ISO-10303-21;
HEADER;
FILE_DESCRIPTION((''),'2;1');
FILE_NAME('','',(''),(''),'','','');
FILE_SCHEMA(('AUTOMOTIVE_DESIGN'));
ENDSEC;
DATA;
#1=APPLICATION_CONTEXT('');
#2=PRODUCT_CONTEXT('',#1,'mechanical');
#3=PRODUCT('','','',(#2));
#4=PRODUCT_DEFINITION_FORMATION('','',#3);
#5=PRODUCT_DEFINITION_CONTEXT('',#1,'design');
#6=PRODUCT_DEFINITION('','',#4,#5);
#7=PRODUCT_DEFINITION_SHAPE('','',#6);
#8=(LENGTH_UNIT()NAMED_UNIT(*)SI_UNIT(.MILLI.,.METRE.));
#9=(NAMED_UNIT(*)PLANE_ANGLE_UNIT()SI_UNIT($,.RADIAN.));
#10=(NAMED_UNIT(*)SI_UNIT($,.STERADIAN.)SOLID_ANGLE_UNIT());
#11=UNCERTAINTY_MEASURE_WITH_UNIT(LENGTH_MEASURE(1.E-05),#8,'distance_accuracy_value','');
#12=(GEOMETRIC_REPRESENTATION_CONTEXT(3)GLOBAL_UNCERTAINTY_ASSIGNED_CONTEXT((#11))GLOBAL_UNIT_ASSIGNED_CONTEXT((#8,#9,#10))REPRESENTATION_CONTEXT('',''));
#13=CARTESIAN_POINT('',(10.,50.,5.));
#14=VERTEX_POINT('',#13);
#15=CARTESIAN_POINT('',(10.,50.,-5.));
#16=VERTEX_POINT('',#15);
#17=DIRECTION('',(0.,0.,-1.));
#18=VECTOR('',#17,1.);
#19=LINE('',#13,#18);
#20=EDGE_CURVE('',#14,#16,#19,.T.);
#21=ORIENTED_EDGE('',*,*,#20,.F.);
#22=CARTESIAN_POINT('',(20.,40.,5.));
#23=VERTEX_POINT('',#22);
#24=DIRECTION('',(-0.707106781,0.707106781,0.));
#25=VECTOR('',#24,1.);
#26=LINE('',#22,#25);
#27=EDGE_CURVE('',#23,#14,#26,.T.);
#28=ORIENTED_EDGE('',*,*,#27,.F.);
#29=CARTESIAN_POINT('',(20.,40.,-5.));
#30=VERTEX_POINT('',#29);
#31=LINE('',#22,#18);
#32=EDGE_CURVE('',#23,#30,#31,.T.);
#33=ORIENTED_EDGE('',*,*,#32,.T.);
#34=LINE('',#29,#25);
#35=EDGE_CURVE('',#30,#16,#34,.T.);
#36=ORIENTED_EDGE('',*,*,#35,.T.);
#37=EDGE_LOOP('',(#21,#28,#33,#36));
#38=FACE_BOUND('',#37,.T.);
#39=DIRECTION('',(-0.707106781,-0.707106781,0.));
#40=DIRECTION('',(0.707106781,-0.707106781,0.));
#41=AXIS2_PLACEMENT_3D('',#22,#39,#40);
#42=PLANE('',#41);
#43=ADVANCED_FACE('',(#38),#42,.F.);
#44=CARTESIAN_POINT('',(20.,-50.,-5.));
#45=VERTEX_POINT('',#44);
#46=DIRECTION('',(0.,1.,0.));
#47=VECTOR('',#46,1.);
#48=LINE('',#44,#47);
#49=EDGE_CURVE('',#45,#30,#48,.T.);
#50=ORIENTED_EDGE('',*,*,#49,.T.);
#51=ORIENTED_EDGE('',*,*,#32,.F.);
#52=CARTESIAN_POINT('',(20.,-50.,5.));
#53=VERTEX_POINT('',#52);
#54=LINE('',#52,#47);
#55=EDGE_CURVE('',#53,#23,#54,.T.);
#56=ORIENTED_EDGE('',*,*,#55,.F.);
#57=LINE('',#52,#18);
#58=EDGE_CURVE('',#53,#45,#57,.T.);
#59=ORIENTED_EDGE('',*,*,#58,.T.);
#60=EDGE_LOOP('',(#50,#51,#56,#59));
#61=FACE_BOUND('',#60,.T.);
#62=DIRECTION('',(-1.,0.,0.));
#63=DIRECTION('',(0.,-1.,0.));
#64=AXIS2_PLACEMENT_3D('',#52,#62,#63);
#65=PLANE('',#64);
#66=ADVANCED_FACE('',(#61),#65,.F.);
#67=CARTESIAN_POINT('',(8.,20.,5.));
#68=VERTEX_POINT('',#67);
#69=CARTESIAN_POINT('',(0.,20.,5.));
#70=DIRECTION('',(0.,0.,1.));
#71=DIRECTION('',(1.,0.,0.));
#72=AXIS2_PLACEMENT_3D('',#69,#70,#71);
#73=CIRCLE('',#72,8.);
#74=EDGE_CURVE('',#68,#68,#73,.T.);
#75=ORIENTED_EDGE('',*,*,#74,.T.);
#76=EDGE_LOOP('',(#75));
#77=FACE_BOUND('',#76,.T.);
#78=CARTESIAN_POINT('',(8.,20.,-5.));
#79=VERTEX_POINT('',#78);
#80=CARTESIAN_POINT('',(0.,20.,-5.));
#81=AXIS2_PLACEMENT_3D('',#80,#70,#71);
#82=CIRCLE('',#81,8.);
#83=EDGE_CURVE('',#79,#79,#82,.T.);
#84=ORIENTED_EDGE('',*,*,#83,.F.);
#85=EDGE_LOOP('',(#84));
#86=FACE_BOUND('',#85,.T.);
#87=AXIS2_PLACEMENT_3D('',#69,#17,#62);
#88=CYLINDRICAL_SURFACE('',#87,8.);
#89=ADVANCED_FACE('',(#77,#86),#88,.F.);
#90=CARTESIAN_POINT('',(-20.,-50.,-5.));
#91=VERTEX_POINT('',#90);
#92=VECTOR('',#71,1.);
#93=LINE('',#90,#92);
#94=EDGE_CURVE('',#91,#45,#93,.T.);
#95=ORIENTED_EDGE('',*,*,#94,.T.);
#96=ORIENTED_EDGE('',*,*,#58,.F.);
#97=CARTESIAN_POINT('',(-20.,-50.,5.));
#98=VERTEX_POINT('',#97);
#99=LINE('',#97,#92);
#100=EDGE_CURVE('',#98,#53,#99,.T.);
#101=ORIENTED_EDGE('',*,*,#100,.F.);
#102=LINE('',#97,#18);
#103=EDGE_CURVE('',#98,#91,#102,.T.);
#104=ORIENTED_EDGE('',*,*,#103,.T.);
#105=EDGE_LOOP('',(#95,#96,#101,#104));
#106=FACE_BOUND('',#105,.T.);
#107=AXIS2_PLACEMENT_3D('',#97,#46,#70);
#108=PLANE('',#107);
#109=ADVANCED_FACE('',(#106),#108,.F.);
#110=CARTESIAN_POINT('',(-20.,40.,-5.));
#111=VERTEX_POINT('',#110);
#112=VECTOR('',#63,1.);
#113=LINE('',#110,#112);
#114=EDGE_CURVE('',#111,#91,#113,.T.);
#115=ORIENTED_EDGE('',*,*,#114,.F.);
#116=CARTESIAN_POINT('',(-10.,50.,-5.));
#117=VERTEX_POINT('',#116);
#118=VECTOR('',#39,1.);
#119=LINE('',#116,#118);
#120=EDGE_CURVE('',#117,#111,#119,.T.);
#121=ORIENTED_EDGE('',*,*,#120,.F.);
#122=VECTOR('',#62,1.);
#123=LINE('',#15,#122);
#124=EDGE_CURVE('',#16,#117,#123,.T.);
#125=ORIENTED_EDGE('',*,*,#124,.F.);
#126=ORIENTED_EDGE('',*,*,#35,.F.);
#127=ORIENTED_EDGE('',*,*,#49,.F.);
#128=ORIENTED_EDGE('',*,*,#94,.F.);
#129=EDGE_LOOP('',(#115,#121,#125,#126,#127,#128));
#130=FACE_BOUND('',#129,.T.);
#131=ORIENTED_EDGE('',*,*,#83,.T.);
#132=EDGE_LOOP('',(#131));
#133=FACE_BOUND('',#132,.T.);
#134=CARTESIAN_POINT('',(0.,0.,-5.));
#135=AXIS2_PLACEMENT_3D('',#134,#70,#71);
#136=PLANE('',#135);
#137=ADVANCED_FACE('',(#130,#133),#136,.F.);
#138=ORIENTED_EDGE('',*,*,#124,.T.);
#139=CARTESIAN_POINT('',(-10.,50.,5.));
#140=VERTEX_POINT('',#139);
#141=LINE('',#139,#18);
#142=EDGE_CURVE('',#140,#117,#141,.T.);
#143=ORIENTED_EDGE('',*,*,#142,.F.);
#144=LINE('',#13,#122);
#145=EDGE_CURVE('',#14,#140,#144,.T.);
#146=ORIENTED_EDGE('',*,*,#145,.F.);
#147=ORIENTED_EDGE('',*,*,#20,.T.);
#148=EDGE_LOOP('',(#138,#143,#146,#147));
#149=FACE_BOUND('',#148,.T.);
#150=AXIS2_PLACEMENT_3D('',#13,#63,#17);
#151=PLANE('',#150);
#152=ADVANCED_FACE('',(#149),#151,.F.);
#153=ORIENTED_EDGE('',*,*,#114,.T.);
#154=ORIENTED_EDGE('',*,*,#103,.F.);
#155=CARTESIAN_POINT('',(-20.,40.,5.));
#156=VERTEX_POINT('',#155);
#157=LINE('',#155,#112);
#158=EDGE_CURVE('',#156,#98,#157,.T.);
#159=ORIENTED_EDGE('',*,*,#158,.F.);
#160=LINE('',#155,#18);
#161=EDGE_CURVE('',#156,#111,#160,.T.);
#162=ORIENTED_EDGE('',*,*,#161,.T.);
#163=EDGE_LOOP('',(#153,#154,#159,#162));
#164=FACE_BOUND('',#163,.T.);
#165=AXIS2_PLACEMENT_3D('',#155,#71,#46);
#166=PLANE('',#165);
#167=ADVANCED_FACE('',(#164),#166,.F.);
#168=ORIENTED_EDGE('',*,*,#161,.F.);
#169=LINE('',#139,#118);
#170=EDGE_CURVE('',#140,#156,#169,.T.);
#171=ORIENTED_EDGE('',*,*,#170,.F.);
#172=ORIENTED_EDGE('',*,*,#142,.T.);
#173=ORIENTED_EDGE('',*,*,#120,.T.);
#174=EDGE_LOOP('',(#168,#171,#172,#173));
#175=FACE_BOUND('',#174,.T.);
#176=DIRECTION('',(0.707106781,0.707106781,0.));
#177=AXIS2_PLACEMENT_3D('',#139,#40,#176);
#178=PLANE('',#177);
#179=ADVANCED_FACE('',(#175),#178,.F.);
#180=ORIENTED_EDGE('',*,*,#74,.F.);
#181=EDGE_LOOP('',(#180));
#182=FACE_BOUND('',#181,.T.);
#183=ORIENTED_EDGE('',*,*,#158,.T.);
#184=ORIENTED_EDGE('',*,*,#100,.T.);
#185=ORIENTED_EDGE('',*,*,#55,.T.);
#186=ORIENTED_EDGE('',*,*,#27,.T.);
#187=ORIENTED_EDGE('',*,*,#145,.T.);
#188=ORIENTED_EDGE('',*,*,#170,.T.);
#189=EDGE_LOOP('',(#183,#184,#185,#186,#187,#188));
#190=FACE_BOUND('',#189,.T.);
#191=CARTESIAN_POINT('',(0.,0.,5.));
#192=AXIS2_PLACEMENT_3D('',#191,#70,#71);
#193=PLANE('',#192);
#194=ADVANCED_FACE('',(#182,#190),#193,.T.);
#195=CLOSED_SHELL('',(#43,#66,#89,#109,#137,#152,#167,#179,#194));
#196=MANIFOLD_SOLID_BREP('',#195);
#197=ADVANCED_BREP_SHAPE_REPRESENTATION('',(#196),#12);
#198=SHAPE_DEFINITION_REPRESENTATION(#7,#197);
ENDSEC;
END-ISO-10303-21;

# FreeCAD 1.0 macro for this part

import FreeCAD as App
import Part
import Sketcher
from FreeCAD import Vector
Q = App.Units.Quantity


def add_polygon(sketch, points):
    """Adds a closed chain of lines whose ends are joined by coincident constraints."""
    first, n = sketch.GeometryCount, len(points)
    for a, b in zip(points, points[1:] + points[:1]):
        sketch.addGeometry(Part.LineSegment(App.Vector(*a, 0), App.Vector(*b, 0)), False)
    for i in range(n):
        sketch.addConstraint(Sketcher.Constraint("Coincident", first + i, 2, first + (i + 1) % n, 1))

doc = App.newDocument("Part")
body = doc.addObject("PartDesign::Body", "Body")

# Sketch on XY plane
sketch1 = body.newObject("Sketcher::SketchObject", "Sketch")
sketch1.AttachmentSupport = (doc.getObject("XY_Plane"), [""])
sketch1.MapMode = "FlatFace"
add_polygon(sketch1, [(-20, -50), (20, -50), (20, 40), (10, 50), (-10, 50), (-20, 40)])  # lines 0-5
sketch1.addGeometry(Part.Circle(Vector(0, 20, 0), Vector(0, 0, 1), 8), False)  # 6
sketch1.addConstraint([
    Sketcher.Constraint("Horizontal", 0),
    Sketcher.Constraint("Vertical", 1),
    Sketcher.Constraint("Horizontal", 3),
    Sketcher.Constraint("Vertical", 5),
    Sketcher.Constraint("Symmetric", 1, 2, 4, 2, -2),
    Sketcher.Constraint("PointOnObject", 6, 3, -2),
    Sketcher.Constraint("Perpendicular", 2, 4),
    Sketcher.Constraint("Equal", 2, 4),
    Sketcher.Constraint("Diameter", 6, Q("16 mm")),
    Sketcher.Constraint("DistanceX", 0, 1, 0, 2, Q("40 mm")),
    Sketcher.Constraint("DistanceX", 3, 2, 3, 1, Q("20 mm")),
    Sketcher.Constraint("DistanceY", 1, 1, 1, 2, Q("90 mm")),
    Sketcher.Constraint("DistanceY", -1, 1, 6, 3, Q("20 mm")),
    Sketcher.Constraint("DistanceY", 0, 2, -1, 1, Q("50 mm")),
])
pad1 = body.newObject("PartDesign::Pad", "Pad")
pad1.Profile = sketch1
pad1.Length = 10
pad1.Midplane = True

doc.recompute()
